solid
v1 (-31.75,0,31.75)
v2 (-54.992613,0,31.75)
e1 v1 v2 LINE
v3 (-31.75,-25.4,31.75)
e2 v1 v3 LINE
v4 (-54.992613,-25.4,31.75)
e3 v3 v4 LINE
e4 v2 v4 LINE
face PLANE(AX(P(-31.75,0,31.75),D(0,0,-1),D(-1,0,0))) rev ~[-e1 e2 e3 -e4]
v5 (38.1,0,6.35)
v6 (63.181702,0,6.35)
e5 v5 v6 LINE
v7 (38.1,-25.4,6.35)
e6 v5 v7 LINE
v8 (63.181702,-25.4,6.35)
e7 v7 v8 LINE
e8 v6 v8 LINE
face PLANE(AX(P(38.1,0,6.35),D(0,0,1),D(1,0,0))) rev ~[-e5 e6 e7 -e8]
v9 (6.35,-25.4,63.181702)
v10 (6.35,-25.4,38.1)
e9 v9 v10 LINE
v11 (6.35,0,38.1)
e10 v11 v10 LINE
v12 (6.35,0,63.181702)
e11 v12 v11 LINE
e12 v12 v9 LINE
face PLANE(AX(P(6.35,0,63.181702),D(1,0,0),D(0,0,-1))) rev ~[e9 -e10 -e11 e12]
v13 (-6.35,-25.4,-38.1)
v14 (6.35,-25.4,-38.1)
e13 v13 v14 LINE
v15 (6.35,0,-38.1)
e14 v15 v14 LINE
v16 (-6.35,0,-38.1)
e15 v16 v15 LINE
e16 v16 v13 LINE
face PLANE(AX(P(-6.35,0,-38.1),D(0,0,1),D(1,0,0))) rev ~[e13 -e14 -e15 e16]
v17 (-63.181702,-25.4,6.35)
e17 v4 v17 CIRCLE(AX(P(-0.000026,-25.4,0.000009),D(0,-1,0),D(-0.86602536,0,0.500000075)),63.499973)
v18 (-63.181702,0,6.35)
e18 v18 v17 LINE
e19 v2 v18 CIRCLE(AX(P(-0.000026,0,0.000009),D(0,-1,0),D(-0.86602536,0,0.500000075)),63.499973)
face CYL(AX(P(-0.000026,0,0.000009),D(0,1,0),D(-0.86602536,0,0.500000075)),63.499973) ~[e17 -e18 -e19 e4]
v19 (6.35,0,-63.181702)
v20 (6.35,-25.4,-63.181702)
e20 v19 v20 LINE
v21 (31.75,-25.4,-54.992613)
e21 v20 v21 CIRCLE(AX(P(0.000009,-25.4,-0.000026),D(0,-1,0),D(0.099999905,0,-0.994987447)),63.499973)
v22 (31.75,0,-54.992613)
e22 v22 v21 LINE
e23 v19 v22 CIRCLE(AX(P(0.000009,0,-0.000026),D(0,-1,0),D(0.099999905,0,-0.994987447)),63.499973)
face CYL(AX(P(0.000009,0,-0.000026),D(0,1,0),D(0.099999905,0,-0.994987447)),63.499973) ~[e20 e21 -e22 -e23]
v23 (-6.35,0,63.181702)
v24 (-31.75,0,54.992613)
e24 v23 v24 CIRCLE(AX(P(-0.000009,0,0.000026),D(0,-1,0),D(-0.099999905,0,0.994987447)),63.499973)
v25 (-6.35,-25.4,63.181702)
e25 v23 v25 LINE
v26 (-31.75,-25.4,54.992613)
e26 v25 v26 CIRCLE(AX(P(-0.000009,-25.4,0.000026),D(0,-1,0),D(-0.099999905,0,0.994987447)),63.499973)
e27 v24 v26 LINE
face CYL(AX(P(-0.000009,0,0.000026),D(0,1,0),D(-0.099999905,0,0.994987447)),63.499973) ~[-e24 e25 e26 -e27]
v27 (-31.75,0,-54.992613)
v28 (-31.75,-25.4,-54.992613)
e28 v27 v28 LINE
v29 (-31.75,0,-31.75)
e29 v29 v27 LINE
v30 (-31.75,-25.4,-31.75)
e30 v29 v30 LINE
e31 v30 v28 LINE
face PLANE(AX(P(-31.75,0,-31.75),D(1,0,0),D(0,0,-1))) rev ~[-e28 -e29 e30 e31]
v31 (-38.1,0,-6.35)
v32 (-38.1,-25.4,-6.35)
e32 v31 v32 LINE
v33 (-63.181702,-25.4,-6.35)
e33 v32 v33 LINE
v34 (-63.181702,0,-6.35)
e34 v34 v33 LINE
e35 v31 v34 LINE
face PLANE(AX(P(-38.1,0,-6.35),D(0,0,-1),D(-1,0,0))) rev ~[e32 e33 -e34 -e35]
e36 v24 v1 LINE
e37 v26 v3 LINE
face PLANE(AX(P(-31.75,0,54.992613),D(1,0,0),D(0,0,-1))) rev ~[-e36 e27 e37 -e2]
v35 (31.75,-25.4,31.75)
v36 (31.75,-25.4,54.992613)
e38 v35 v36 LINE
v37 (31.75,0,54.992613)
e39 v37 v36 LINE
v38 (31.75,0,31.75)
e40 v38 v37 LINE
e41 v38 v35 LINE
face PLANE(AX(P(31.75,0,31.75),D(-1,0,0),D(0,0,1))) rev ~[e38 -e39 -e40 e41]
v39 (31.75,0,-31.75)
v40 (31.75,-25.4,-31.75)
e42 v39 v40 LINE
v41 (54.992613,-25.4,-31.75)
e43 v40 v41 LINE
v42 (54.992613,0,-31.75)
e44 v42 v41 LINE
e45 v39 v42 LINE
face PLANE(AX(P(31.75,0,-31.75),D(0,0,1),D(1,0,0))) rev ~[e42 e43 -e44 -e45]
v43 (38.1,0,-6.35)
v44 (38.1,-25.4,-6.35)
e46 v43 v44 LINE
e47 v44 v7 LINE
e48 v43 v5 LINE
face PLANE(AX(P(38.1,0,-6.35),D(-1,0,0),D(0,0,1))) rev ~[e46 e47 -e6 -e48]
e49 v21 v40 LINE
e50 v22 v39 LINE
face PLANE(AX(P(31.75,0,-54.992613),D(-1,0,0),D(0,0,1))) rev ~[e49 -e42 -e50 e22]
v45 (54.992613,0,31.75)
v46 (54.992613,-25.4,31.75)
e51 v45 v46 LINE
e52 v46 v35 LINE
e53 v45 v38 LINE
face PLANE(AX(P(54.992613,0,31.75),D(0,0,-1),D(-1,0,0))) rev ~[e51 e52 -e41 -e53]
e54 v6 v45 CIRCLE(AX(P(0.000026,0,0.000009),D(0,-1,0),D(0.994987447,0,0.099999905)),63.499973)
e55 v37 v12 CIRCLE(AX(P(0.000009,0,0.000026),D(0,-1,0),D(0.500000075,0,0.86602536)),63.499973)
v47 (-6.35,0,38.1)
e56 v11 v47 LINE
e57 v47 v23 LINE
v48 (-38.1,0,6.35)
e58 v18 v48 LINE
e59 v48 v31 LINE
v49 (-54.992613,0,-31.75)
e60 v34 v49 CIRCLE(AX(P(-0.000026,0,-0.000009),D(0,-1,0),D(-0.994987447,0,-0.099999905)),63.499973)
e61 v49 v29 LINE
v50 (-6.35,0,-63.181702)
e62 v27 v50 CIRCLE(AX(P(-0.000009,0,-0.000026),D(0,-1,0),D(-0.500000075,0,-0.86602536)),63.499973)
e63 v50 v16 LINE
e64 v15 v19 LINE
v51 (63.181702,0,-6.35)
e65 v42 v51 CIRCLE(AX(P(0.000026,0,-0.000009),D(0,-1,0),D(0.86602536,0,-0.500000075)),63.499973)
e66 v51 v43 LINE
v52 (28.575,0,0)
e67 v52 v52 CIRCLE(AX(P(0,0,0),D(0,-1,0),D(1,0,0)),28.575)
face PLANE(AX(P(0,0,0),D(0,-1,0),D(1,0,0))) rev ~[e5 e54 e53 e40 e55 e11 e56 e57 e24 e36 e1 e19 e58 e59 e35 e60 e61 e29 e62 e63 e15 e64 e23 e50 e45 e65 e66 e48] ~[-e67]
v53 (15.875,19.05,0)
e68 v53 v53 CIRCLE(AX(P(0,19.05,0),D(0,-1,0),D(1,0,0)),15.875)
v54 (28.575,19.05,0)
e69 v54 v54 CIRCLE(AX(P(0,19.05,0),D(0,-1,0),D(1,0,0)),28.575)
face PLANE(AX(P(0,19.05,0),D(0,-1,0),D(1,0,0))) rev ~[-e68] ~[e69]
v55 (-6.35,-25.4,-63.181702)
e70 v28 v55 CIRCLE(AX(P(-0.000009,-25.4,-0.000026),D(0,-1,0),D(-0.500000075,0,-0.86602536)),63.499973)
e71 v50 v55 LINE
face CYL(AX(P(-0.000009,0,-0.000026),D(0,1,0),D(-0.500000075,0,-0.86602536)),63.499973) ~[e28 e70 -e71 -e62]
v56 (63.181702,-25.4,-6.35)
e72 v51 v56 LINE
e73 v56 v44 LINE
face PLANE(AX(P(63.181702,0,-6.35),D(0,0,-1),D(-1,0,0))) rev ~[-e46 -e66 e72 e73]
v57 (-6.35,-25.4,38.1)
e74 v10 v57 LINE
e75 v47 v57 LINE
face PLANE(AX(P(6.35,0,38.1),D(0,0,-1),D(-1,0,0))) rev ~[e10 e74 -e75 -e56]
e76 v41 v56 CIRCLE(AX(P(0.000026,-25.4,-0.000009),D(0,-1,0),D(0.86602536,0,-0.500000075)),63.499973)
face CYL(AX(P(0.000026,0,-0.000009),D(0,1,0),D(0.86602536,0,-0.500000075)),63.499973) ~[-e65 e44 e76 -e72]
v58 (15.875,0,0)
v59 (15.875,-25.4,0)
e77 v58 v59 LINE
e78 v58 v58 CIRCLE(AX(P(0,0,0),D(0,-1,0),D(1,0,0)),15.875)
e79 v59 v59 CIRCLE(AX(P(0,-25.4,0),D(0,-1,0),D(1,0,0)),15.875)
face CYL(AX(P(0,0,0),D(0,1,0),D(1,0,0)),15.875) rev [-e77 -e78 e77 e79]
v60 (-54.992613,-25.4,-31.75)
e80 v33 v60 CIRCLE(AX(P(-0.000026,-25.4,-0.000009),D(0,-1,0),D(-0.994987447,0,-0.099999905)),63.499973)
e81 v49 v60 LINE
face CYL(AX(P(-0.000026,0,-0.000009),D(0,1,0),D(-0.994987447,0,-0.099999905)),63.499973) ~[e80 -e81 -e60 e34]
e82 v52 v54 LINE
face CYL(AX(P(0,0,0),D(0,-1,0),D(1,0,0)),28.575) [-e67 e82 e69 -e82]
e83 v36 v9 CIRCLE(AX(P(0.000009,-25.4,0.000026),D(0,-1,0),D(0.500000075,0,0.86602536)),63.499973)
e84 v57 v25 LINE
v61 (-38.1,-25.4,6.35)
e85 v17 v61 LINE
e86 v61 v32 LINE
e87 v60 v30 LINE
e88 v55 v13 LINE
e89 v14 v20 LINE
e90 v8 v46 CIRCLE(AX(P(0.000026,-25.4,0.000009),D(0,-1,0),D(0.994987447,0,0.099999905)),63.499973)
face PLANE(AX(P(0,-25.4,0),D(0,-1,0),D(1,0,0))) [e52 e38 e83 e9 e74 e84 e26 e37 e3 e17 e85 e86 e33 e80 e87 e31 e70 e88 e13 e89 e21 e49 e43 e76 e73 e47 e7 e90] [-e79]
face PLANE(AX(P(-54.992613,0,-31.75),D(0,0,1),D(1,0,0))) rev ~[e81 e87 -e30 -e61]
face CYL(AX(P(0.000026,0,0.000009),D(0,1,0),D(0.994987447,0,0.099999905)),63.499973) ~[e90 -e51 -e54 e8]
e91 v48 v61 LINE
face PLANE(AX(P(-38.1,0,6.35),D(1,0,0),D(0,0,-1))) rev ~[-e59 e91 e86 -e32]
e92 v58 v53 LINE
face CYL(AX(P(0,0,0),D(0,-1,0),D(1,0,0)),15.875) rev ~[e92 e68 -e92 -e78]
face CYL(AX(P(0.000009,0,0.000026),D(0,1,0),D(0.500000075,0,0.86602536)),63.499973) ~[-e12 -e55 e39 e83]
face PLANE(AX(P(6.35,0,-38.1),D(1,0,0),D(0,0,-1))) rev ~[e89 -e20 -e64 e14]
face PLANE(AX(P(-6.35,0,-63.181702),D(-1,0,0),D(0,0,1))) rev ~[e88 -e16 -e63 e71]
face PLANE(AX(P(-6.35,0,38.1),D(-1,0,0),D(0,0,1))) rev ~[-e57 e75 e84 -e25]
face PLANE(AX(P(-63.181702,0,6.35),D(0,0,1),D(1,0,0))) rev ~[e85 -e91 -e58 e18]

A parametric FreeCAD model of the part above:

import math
import FreeCAD as App
import Part
import Sketcher
from FreeCAD import Vector
Q = App.Units.Quantity

doc = App.newDocument("Part")
body = doc.addObject("PartDesign::Body", "Body")

# Sketch on XZ plane
sketch1 = doc.addObject("Sketcher::SketchObject", "Sketch")
body.addObject(sketch1)
sketch1.AttachmentSupport = (doc.XZ_Plane, [""])
sketch1.MapMode = "FlatFace"
sketch1.addGeometry([
    Part.LineSegment(Vector(38.1, 6.35, 0), Vector(63.181702, 6.35, 0)),  # 0
    Part.ArcOfCircle(Part.Circle(Vector(0.000026, 0.000009, 0), Vector(0, 0, 1), 63.499973), math.radians(5.739165), math.radians(30.000005)),  # 1
    Part.LineSegment(Vector(54.992613, 31.75, 0), Vector(31.75, 31.75, 0)),  # 2
    Part.LineSegment(Vector(31.75, 31.75, 0), Vector(31.75, 54.992613, 0)),  # 3
    Part.ArcOfCircle(Part.Circle(Vector(0.000009, 0.000026, 0), Vector(0, 0, 1), 63.499973), math.radians(59.999995), math.radians(84.260835)),  # 4
    Part.LineSegment(Vector(6.35, 63.181702, 0), Vector(6.35, 38.1, 0)),  # 5
    Part.LineSegment(Vector(6.35, 38.1, 0), Vector(-6.35, 38.1, 0)),  # 6
    Part.LineSegment(Vector(-6.35, 38.1, 0), Vector(-6.35, 63.181702, 0)),  # 7
    Part.ArcOfCircle(Part.Circle(Vector(-0.000009, 0.000026, 0), Vector(0, 0, 1), 63.499973), math.radians(95.739165), math.radians(120.000005)),  # 8
    Part.LineSegment(Vector(-31.75, 54.992613, 0), Vector(-31.75, 31.75, 0)),  # 9
    Part.LineSegment(Vector(-31.75, 31.75, 0), Vector(-54.992613, 31.75, 0)),  # 10
    Part.ArcOfCircle(Part.Circle(Vector(-0.000026, 0.000009, 0), Vector(0, 0, 1), 63.499973), math.radians(149.999995), math.radians(174.260835)),  # 11
    Part.LineSegment(Vector(-63.181702, 6.35, 0), Vector(-38.1, 6.35, 0)),  # 12
    Part.LineSegment(Vector(-38.1, 6.35, 0), Vector(-38.1, -6.35, 0)),  # 13
    Part.LineSegment(Vector(-38.1, -6.35, 0), Vector(-63.181702, -6.35, 0)),  # 14
    Part.ArcOfCircle(Part.Circle(Vector(-0.000026, -0.000009, 0), Vector(0, 0, 1), 63.499973), math.radians(-174.260835), math.radians(-149.999995)),  # 15
    Part.LineSegment(Vector(-54.992613, -31.75, 0), Vector(-31.75, -31.75, 0)),  # 16
    Part.LineSegment(Vector(-31.75, -31.75, 0), Vector(-31.75, -54.992613, 0)),  # 17
    Part.ArcOfCircle(Part.Circle(Vector(-0.000009, -0.000026, 0), Vector(0, 0, 1), 63.499973), math.radians(-120.000005), math.radians(-95.739165)),  # 18
    Part.LineSegment(Vector(-6.35, -63.181702, 0), Vector(-6.35, -38.1, 0)),  # 19
    Part.LineSegment(Vector(-6.35, -38.1, 0), Vector(6.35, -38.1, 0)),  # 20
    Part.LineSegment(Vector(6.35, -38.1, 0), Vector(6.35, -63.181702, 0)),  # 21
    Part.ArcOfCircle(Part.Circle(Vector(0.000009, -0.000026, 0), Vector(0, 0, 1), 63.499973), math.radians(-84.260835), math.radians(-59.999995)),  # 22
    Part.LineSegment(Vector(31.75, -54.992613, 0), Vector(31.75, -31.75, 0)),  # 23
    Part.LineSegment(Vector(31.75, -31.75, 0), Vector(54.992613, -31.75, 0)),  # 24
    Part.ArcOfCircle(Part.Circle(Vector(0.000026, -0.000009, 0), Vector(0, 0, 1), 63.499973), math.radians(-30.000005), math.radians(-5.739165)),  # 25
    Part.LineSegment(Vector(63.181702, -6.35, 0), Vector(38.1, -6.35, 0)),  # 26
    Part.LineSegment(Vector(38.1, -6.35, 0), Vector(38.1, 6.35, 0)),  # 27
    Part.Circle(Vector(0, 0, 0), Vector(0, 0, 1), 15.875),  # 28
], False)
sketch1.addConstraint([
    Sketcher.Constraint("Coincident", 0, 2, 1, 1),
    Sketcher.Constraint("Coincident", 1, 2, 2, 1),
    Sketcher.Constraint("Coincident", 2, 2, 3, 1),
    Sketcher.Constraint("Coincident", 3, 2, 4, 1),
    Sketcher.Constraint("Coincident", 4, 2, 5, 1),
    Sketcher.Constraint("Coincident", 5, 2, 6, 1),
    Sketcher.Constraint("Coincident", 6, 2, 7, 1),
    Sketcher.Constraint("Coincident", 7, 2, 8, 1),
    Sketcher.Constraint("Coincident", 8, 2, 9, 1),
    Sketcher.Constraint("Coincident", 9, 2, 10, 1),
    Sketcher.Constraint("Coincident", 10, 2, 11, 1),
    Sketcher.Constraint("Coincident", 11, 2, 12, 1),
    Sketcher.Constraint("Coincident", 12, 2, 13, 1),
    Sketcher.Constraint("Coincident", 13, 2, 14, 1),
    Sketcher.Constraint("Coincident", 14, 2, 15, 1),
    Sketcher.Constraint("Coincident", 15, 2, 16, 1),
    Sketcher.Constraint("Coincident", 16, 2, 17, 1),
    Sketcher.Constraint("Coincident", 17, 2, 18, 1),
    Sketcher.Constraint("Coincident", 18, 2, 19, 1),
    Sketcher.Constraint("Coincident", 19, 2, 20, 1),
    Sketcher.Constraint("Coincident", 20, 2, 21, 1),
    Sketcher.Constraint("Coincident", 21, 2, 22, 1),
    Sketcher.Constraint("Coincident", 22, 2, 23, 1),
    Sketcher.Constraint("Coincident", 23, 2, 24, 1),
    Sketcher.Constraint("Coincident", 24, 2, 25, 1),
    Sketcher.Constraint("Coincident", 25, 2, 26, 1),
    Sketcher.Constraint("Coincident", 26, 2, 27, 1),
    Sketcher.Constraint("Coincident", 27, 2, 0, 1),
    Sketcher.Constraint("Horizontal", 0),
    Sketcher.Constraint("Horizontal", 2),
    Sketcher.Constraint("Vertical", 3),
    Sketcher.Constraint("Vertical", 5),
    Sketcher.Constraint("Horizontal", 6),
    Sketcher.Constraint("Vertical", 7),
    Sketcher.Constraint("Vertical", 9),
    Sketcher.Constraint("Horizontal", 10),
    Sketcher.Constraint("Horizontal", 12),
    Sketcher.Constraint("Vertical", 13),
    Sketcher.Constraint("Horizontal", 14),
    Sketcher.Constraint("Horizontal", 16),
    Sketcher.Constraint("Vertical", 17),
    Sketcher.Constraint("Vertical", 19),
    Sketcher.Constraint("Horizontal", 20),
    Sketcher.Constraint("Vertical", 21),
    Sketcher.Constraint("Vertical", 23),
    Sketcher.Constraint("Horizontal", 24),
    Sketcher.Constraint("Horizontal", 26),
    Sketcher.Constraint("Vertical", 27),
    Sketcher.Constraint("Coincident", 28, 3, -1, 1),
    Sketcher.Constraint("Equal", 1, 4),
    Sketcher.Constraint("Equal", 4, 8),
    Sketcher.Constraint("Equal", 8, 11),
    Sketcher.Constraint("Equal", 11, 15),
    Sketcher.Constraint("Equal", 15, 18),
    Sketcher.Constraint("Equal", 18, 22),
    Sketcher.Constraint("Equal", 22, 25),
    Sketcher.Constraint("Symmetric", 1, 3, 15, 3, -1, 1),
    Sketcher.Constraint("Symmetric", 4, 3, 18, 3, -1, 1),
    Sketcher.Constraint("Symmetric", 8, 3, 22, 3, -1, 1),
    Sketcher.Constraint("Symmetric", 11, 3, 25, 3, -1, 1),
    Sketcher.Constraint("Symmetric", 2, 2, 16, 2, -1, 1),
    Sketcher.Constraint("Symmetric", 5, 2, 19, 2, -1, 1),
    Sketcher.Constraint("Symmetric", 9, 2, 23, 2, -1, 1),
    Sketcher.Constraint("Symmetric", 12, 2, 26, 2, -1, 1),
    Sketcher.Constraint("Symmetric", 4, 3, 8, 3, -2),
    Sketcher.Constraint("Symmetric", 1, 3, 11, 3, -2),
    Sketcher.Constraint("Symmetric", 2, 2, 9, 2, -2),
    Sketcher.Constraint("Horizontal", 4, 2, 7, 2),
    Sketcher.Constraint("Horizontal", 0, 2, 11, 2),
    Sketcher.Constraint("Horizontal", 18, 2, 21, 2),
    Sketcher.Constraint("Horizontal", 14, 2, 25, 2),
    Sketcher.Constraint("Equal", 24, 3),
    Sketcher.Constraint("Equal", 26, 5),
    Sketcher.Constraint("Equal", 20, 13),
    Sketcher.Constraint("Diameter", 28, Q("1.25 in")),
    Sketcher.Constraint("DistanceX", 6, 2, 6, 1, Q("0.5 in")),
    Sketcher.Constraint("DistanceY", 0, 2, 1, 2, Q("1 in")),
    Sketcher.Constraint("DistanceX", 4, 2, 3, 2, Q("1 in")),
    Sketcher.Constraint("DistanceY", -1, 1, 5, 2, Q("1.5 in")),
    Sketcher.Constraint("DistanceX", 12, 2, -1, 1, Q("1.5 in")),
    Sketcher.Constraint("DistanceX", 0, 1, 0, 2, Q("25.081702 mm")),
    Sketcher.Constraint("Radius", 1, Q("63.499973 mm")),
    Sketcher.Constraint("DistanceX", 2, 2, 2, 1, Q("23.242613 mm")),
])
pad1 = doc.addObject("PartDesign::Pad", "Pad")
body.addObject(pad1)
pad1.Profile = sketch1
pad1.Length = Q("1 in")

# Sketch on XZ plane
sketch2 = doc.addObject("Sketcher::SketchObject", "Sketch001")
body.addObject(sketch2)
sketch2.AttachmentSupport = (doc.XZ_Plane, [""])
sketch2.MapMode = "FlatFace"
sketch2.addGeometry([
    Part.Circle(Vector(0, 0, 0), Vector(0, 0, 1), 28.575),
    Part.Circle(Vector(0, 0, 0), Vector(0, 0, 1), 15.875),
], False)
sketch2.addConstraint([
    Sketcher.Constraint("Coincident", 0, 3, -1, 1),
    Sketcher.Constraint("Coincident", 1, 3, -1, 1),
    Sketcher.Constraint("Diameter", 0, Q("2.25 in")),
    Sketcher.Constraint("Diameter", 1, Q("1.25 in")),
])
pad2 = doc.addObject("PartDesign::Pad", "Pad001")
body.addObject(pad2)
pad2.Profile = sketch2
pad2.Length = Q("0.75 in")
pad2.Reversed = True

doc.recompute()
